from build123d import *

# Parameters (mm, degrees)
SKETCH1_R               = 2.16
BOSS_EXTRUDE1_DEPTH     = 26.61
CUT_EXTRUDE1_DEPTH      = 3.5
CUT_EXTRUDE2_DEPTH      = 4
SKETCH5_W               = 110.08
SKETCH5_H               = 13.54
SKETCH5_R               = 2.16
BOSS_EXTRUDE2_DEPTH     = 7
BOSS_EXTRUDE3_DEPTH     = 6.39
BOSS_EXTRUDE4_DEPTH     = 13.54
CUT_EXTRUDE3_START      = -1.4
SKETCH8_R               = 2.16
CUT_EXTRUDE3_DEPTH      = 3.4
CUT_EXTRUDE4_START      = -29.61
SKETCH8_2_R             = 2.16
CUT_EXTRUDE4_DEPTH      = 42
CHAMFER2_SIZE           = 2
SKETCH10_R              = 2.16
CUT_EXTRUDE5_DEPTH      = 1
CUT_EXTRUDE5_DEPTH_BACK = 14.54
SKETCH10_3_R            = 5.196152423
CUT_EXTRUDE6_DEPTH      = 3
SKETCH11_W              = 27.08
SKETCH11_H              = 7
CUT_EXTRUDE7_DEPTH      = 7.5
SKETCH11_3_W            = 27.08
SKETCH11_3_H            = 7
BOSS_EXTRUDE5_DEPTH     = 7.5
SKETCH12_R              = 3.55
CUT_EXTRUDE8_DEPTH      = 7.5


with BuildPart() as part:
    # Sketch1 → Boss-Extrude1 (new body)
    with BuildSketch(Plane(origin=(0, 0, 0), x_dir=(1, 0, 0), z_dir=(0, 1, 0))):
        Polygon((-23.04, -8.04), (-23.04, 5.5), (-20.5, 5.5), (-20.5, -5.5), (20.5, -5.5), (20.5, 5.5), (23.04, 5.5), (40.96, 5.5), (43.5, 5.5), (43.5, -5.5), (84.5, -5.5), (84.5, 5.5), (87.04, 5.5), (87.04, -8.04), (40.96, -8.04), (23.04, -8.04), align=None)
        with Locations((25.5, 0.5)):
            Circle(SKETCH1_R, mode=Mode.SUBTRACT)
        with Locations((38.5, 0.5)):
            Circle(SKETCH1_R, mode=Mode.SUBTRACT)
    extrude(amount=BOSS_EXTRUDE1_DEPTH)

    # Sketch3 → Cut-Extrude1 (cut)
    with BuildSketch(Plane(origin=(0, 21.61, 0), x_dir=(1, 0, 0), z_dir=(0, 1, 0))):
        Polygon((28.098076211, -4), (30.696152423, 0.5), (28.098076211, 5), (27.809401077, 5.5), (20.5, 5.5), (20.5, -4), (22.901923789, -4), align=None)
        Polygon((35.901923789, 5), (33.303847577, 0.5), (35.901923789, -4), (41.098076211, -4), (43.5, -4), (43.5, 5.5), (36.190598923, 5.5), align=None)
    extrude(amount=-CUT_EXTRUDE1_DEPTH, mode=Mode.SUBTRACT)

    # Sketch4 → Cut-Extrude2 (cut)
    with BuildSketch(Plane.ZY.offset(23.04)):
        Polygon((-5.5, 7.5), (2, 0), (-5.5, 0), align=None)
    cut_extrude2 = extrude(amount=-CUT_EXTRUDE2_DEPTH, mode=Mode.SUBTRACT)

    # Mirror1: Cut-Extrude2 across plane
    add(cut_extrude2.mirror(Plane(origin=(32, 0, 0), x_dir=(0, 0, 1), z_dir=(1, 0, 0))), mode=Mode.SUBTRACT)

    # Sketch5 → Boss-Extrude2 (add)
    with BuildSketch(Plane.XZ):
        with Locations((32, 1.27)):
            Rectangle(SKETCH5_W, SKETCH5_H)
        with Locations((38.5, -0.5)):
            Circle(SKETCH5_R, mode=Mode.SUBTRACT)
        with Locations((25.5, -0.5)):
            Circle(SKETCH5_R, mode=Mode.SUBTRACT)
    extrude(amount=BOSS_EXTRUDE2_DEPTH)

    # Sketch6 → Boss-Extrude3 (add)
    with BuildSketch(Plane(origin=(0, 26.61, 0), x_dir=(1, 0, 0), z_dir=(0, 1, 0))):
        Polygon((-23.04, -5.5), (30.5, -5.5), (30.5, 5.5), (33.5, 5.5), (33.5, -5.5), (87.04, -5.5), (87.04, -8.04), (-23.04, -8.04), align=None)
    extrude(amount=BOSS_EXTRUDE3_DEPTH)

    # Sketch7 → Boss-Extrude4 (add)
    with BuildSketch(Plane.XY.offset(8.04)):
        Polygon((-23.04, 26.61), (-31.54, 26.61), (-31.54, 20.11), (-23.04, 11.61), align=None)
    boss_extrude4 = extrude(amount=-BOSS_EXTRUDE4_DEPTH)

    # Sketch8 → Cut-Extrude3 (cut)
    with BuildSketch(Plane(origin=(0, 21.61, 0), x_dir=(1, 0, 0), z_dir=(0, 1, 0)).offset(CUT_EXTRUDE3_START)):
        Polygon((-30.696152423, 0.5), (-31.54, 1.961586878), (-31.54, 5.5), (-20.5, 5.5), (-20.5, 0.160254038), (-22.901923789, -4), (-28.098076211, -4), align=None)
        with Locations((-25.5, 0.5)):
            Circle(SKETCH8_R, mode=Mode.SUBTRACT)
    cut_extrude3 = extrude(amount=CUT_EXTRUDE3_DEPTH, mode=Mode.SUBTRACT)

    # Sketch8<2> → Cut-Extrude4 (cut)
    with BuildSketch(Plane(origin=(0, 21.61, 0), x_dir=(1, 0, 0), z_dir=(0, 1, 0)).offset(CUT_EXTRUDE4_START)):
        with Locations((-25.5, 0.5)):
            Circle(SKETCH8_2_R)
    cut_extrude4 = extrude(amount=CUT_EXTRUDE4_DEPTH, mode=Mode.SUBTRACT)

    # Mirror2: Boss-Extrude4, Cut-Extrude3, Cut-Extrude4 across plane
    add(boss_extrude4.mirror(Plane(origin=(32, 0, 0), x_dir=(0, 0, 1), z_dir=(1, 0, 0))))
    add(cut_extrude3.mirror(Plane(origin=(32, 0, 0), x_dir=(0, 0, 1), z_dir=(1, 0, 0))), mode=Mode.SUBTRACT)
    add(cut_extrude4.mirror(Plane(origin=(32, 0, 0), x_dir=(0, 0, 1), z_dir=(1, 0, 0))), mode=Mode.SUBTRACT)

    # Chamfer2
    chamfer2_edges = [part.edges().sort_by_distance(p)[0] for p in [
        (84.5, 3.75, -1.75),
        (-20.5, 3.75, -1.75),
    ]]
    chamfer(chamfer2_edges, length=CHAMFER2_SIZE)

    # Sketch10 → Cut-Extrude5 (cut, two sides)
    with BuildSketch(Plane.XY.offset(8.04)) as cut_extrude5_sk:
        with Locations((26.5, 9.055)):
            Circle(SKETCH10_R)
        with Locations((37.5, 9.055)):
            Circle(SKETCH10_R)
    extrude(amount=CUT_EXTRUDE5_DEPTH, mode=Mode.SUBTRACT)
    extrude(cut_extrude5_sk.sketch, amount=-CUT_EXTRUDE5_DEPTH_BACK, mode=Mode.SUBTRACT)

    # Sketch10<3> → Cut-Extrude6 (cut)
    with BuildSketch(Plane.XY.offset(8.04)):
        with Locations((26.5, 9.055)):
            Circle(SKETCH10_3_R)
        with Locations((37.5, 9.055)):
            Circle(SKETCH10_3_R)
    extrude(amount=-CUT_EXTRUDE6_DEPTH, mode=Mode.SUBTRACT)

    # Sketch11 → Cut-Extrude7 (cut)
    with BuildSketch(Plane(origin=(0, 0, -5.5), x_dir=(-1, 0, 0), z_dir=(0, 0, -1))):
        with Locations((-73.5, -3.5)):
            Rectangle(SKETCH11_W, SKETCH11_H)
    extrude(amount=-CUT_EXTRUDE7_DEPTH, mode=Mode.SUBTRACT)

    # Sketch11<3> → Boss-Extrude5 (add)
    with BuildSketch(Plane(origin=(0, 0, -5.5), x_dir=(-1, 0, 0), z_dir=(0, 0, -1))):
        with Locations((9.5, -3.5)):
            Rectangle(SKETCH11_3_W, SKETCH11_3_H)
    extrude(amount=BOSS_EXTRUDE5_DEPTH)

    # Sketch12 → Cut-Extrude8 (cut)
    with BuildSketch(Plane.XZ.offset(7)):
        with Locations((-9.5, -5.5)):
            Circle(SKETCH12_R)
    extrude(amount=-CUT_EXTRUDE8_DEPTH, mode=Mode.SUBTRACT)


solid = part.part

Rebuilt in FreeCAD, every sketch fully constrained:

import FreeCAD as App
import Part
import Sketcher

V = App.Vector
Q = App.Units.Quantity


def edges_at(feature, points):
    """Names of the edges that pass closest to the given points."""
    edges = feature.Shape.Edges
    near = lambda p: min(range(len(edges)), key=lambda i: edges[i].distToShape(Part.Vertex(*p))[0])
    return sorted({f"Edge{near(p) + 1}" for p in points})


def add_polygon(sketch, points):
    """Adds a closed chain of lines whose ends are joined by coincident constraints."""
    first, n = sketch.GeometryCount, len(points)
    for a, b in zip(points, points[1:] + points[:1]):
        sketch.addGeometry(Part.LineSegment(App.Vector(*a, 0), App.Vector(*b, 0)), False)
    for i in range(n):
        sketch.addConstraint(Sketcher.Constraint("Coincident", first + i, 2, first + (i + 1) % n, 1))

doc = App.newDocument("Part")
params = doc.addObject("Spreadsheet::Sheet", "Params")
for row, (alias, value) in enumerate([
    ("sketch1_diameter", "4.32 mm"),
    ("sketch1_width", "41 mm"),
    ("sketch1_width2", "23 mm"),
    ("sketch1_height", "11 mm"),
    ("sketch1_width3", "110.08 mm"),
    ("pad1_length", "26.61 mm"),
    ("sketch2_height", "9.5 mm"),
    ("pocket1_length", "3.5 mm"),
    ("sketch3_width", "7.5 mm"),
    ("pocket2_length", "4 mm"),
    ("sketch4_diameter", "4.32 mm"),
    ("sketch4_width", "110.08 mm"),
    ("sketch4_height", "13.54 mm"),
    ("pad2_length", "7 mm"),
    ("sketch5_width", "3 mm"),
    ("sketch5_height", "11 mm"),
    ("sketch5_width2", "53.54 mm"),
    ("sketch5_height2", "2.54 mm"),
    ("pad3_length", "6.39 mm"),
    ("sketch6_height", "15 mm"),
    ("sketch6_width", "8.5 mm"),
    ("pad4_length", "13.54 mm"),
    ("sketch7_diameter", "4.32 mm"),
    ("sketch7_width", "11.04 mm"),
    ("pocket3_length", "3.4 mm"),
    ("sketch8_diameter", "4.32 mm"),
    ("pocket4_length", "42 mm"),
    ("chamfer_size", "2 mm"),
    ("sketch9_diameter", "4.32 mm"),
    ("pocket6_length", "3 mm"),
    ("sketch11_height", "7 mm"),
    ("sketch11_width", "27.08 mm"),
    ("pocket7_length", "7.5 mm"),
    ("sketch12_height", "7 mm"),
    ("sketch12_width", "27.08 mm"),
    ("pad5_length", "7.5 mm"),
    ("sketch13_diameter", "7.1 mm"),
    ("pocket8_length", "7.5 mm"),
], start=1):
    params.set(f"A{row}", alias)
    params.set(f"B{row}", "=" + value)
    params.setAlias(f"B{row}", alias)

body = doc.addObject("PartDesign::Body", "Body")

sketch1 = body.newObject("Sketcher::SketchObject", "Sketch")
sketch1.AttachmentSupport = (doc.getObject("XZ_Plane"), [""])
sketch1.MapMode = "FlatFace"
add_polygon(sketch1, [(-23, -5.5), (-23, 8), (87, 8), (87, -5.5), (84.5, -5.5), (84.5, 5.5), (43.5, 5.5), (43.5, -5.5), (20.5, -5.5), (20.5, 5.5), (-20.5, 5.5), (-20.5, -5.5)])
sketch1.addGeometry(Part.Circle(V(38.5, -0.5, 0), V(0, 0, 1), 2.2), False)
sketch1.addGeometry(Part.Circle(V(25.5, -0.5, 0), V(0, 0, 1), 2.2), False)
sketch1.addConstraint([
    Sketcher.Constraint("Vertical", 0),
    Sketcher.Constraint("Horizontal", 1),
    Sketcher.Constraint("Vertical", 2),
    Sketcher.Constraint("Horizontal", 3),
    Sketcher.Constraint("Vertical", 4),
    Sketcher.Constraint("Horizontal", 5),
    Sketcher.Constraint("Vertical", 6),
    Sketcher.Constraint("Horizontal", 7),
    Sketcher.Constraint("Vertical", 8),
    Sketcher.Constraint("Horizontal", 9),
    Sketcher.Constraint("Vertical", 10),
    Sketcher.Constraint("Horizontal", 11),
    Sketcher.Constraint("Equal", 12, 13),
    Sketcher.Constraint("Symmetric", 7, 2, 9, 2, -1, 1),
    Sketcher.Constraint("Horizontal", 12, 3, 13, 3),
    Sketcher.Constraint("Horizontal", 3, 2, 6, 2),
    Sketcher.Constraint("Horizontal", 5, 2, 8, 2),
    Sketcher.Constraint("Horizontal", 7, 2, 10, 2),
    Sketcher.Constraint("Equal", 5, 9),
    Sketcher.Constraint("Equal", 3, 11),
    Sketcher.Constraint("Diameter", 12, Q("4.32 mm")),
    Sketcher.Constraint("DistanceX", 5, 2, 5, 1, Q("41 mm")),
    Sketcher.Constraint("DistanceX", 7, 2, 7, 1, Q("23 mm")),
    Sketcher.Constraint("DistanceY", 4, 1, 4, 2, Q("11 mm")),
    Sketcher.Constraint("DistanceX", 13, 3, 12, 3, Q("13 mm")),
    Sketcher.Constraint("DistanceY", 2, 2, 12, 3, Q("5 mm")),
    Sketcher.Constraint("DistanceX", 12, 3, 3, 2, Q("46 mm")),
    Sketcher.Constraint("DistanceX", 1, 1, 1, 2, Q("110.08 mm")),
    Sketcher.Constraint("DistanceY", 0, 1, 0, 2, Q("13.54 mm")),
])
sketch1.setExpression("Constraints[32]", "Params.sketch1_diameter")
sketch1.setExpression("Constraints[33]", "Params.sketch1_width")
sketch1.setExpression("Constraints[34]", "Params.sketch1_width2")
sketch1.setExpression("Constraints[35]", "Params.sketch1_height")
sketch1.setExpression("Constraints[39]", "Params.sketch1_width3")
pad1 = body.newObject("PartDesign::Pad", "Pad")
pad1.Profile = sketch1
pad1.setExpression("Length", "Params.pad1_length")
pad1.Reversed = True

sketch2 = body.newObject("Sketcher::SketchObject", "Sketch001")
sketch2.AttachmentSupport = (doc.getObject("XZ_Plane"), [""])
sketch2.MapMode = "FlatFace"
sketch2.AttachmentOffset = App.Placement(V(0, 0, -21.61), App.Rotation())
add_polygon(sketch2, [(28.1, 4), (30.7, -0.5), (28.1, -5), (27.8, -5.5), (20.5, -5.5), (20.5, 4)])
add_polygon(sketch2, [(35.9, -5), (33.3, -0.5), (35.9, 4), (43.5, 4), (43.5, -5.5), (36.2, -5.5)])
sketch2.addConstraint([
    Sketcher.Constraint("Horizontal", 3),
    Sketcher.Constraint("Vertical", 4),
    Sketcher.Constraint("Horizontal", 5),
    Sketcher.Constraint("Horizontal", 8),
    Sketcher.Constraint("Vertical", 9),
    Sketcher.Constraint("Horizontal", 10),
    Sketcher.Constraint("Parallel", 1, 2),
    Sketcher.Constraint("Parallel", 0, 6),
    Sketcher.Constraint("Parallel", 2, 7),
    Sketcher.Constraint("Parallel", 6, 11),
    Sketcher.Constraint("Horizontal", 0, 2, 6, 2),
    Sketcher.Constraint("Horizontal", 5, 2, 7, 2),
    Sketcher.Constraint("Horizontal", 3, 2, 9, 2),
    Sketcher.Constraint("Horizontal", 1, 2, 11, 2),
    Sketcher.Constraint("Vertical", 1, 2, 5, 2),
    Sketcher.Constraint("Vertical", 7, 2, 11, 2),
    Sketcher.Constraint("Equal", 5, 8),
    Sketcher.Constraint("Angle", 0, Q("-60 deg")),
    Sketcher.Constraint("DistanceY", 4, 1, 4, 2, Q("9.5 mm")),
    Sketcher.Constraint("DistanceY", 1, 2, -1, 1, Q("5 mm")),
    Sketcher.Constraint("DistanceY", -1, 1, 4, 2, Q("4 mm")),
    Sketcher.Constraint("DistanceX", -1, 1, 3, 2, Q("20.5 mm")),
    Sketcher.Constraint("DistanceX", -1, 1, 8, 2, Q("43.5 mm")),
    Sketcher.Constraint("DistanceX", 3, 2, 3, 1, Q("7.309401 mm")),
])
sketch2.setExpression("Constraints[30]", "Params.sketch2_height")
pocket1 = body.newObject("PartDesign::Pocket", "Pocket")
pocket1.Profile = sketch2
pocket1.setExpression("Length", "Params.pocket1_length")
pocket1.Reversed = True

sketch3 = body.newObject("Sketcher::SketchObject", "Sketch002")
sketch3.AttachmentSupport = (doc.getObject("YZ_Plane"), [""])
sketch3.MapMode = "FlatFace"
sketch3.AttachmentOffset = App.Placement(V(0, 0, -23.04), App.Rotation())
add_polygon(sketch3, [(0, 2), (8, -6), (0, -6)])
sketch3.addConstraint([
    Sketcher.Constraint("Horizontal", 1),
    Sketcher.Constraint("Vertical", 2),
    Sketcher.Constraint("PointOnObject", 1, 2, -2),
    Sketcher.Constraint("Equal", 1, 2),
    Sketcher.Constraint("DistanceX", 1, 2, 1, 1, Q("7.5 mm")),
    Sketcher.Constraint("DistanceY", -1, 1, 2, 2, Q("2 mm")),
])
sketch3.setExpression("Constraints[7]", "Params.sketch3_width")
pocket2 = body.newObject("PartDesign::Pocket", "Pocket001")
pocket2.Profile = sketch3
pocket2.setExpression("Length", "Params.pocket2_length")
pocket2.Reversed = True
doc.recompute()

datumplane = body.newObject("PartDesign::Plane", "DatumPlane")
datumplane.AttachmentSupport = (doc.getObject("YZ_Plane"), [""])
datumplane.MapMode = "FlatFace"
datumplane.AttachmentOffset = App.Placement(V(0, 0, 32), App.Rotation())
mirrored = body.newObject("PartDesign::Mirrored", "Mirrored")
mirrored.Originals = [pocket2]
mirrored.MirrorPlane = (datumplane, [""])
body.Tip = mirrored

sketch4 = body.newObject("Sketcher::SketchObject", "Sketch003")
sketch4.AttachmentSupport = (doc.getObject("XZ_Plane"), [""])
sketch4.MapMode = "FlatFace"
add_polygon(sketch4, [(-23, 8), (-23, -5.5), (87, -5.5), (87, 8)])
sketch4.addGeometry(Part.Circle(V(25.5, -0.5, 0), V(0, 0, 1), 2.2), False)
sketch4.addGeometry(Part.Circle(V(38.5, -0.5, 0), V(0, 0, 1), 2.2), False)
sketch4.addConstraint([
    Sketcher.Constraint("Vertical", 0),
    Sketcher.Constraint("Horizontal", 1),
    Sketcher.Constraint("Vertical", 2),
    Sketcher.Constraint("Horizontal", 3),
    Sketcher.Constraint("Equal", 4, 5),
    Sketcher.Constraint("Horizontal", 4, 3, 5, 3),
    Sketcher.Constraint("Diameter", 4, Q("4.32 mm")),
    Sketcher.Constraint("DistanceX", 4, 3, 5, 3, Q("13 mm")),
    Sketcher.Constraint("DistanceY", 0, 2, 4, 3, Q("5 mm")),
    Sketcher.Constraint("DistanceX", 1, 1, 1, 2, Q("110.08 mm")),
    Sketcher.Constraint("DistanceY", 0, 2, 0, 1, Q("13.54 mm")),
    Sketcher.Constraint("DistanceX", -1, 1, 4, 3, Q("25.5 mm")),
    Sketcher.Constraint("DistanceY", 4, 3, -1, 1, Q("0.5 mm")),
    Sketcher.Constraint("DistanceX", 0, 2, -1, 1, Q("23.04 mm")),
])
sketch4.setExpression("Constraints[10]", "Params.sketch4_diameter")
sketch4.setExpression("Constraints[13]", "Params.sketch4_width")
sketch4.setExpression("Constraints[14]", "Params.sketch4_height")
pad2 = body.newObject("PartDesign::Pad", "Pad001")
pad2.Profile = sketch4
pad2.setExpression("Length", "Params.pad2_length")

sketch5 = body.newObject("Sketcher::SketchObject", "Sketch004")
sketch5.AttachmentSupport = (doc.getObject("XZ_Plane"), [""])
sketch5.MapMode = "FlatFace"
sketch5.AttachmentOffset = App.Placement(V(0, 0, -26.61), App.Rotation())
add_polygon(sketch5, [(30.5, 5.5), (-23, 5.5), (-23, 8), (87, 8), (87, 5.5), (33.5, 5.5), (33.5, -5.5), (30.5, -5.5)])
sketch5.addConstraint([
    Sketcher.Constraint("Horizontal", 0),
    Sketcher.Constraint("Vertical", 1),
    Sketcher.Constraint("Horizontal", 2),
    Sketcher.Constraint("Vertical", 3),
    Sketcher.Constraint("Horizontal", 4),
    Sketcher.Constraint("Vertical", 5),
    Sketcher.Constraint("Horizontal", 6),
    Sketcher.Constraint("Vertical", 7),
    Sketcher.Constraint("Horizontal", 0, 2, 3, 2),
    Sketcher.Constraint("Equal", 0, 4),
    Sketcher.Constraint("DistanceX", 6, 2, 6, 1, Q("3 mm")),
    Sketcher.Constraint("DistanceY", 5, 2, 5, 1, Q("11 mm")),
    Sketcher.Constraint("DistanceX", 0, 2, 0, 1, Q("53.54 mm")),
    Sketcher.Constraint("DistanceY", 1, 1, 1, 2, Q("2.54 mm")),
    Sketcher.Constraint("DistanceY", -1, 1, 0, 2, Q("5.5 mm")),
    Sketcher.Constraint("DistanceX", -1, 1, 4, 2, Q("33.5 mm")),
])
sketch5.setExpression("Constraints[18]", "Params.sketch5_width")
sketch5.setExpression("Constraints[19]", "Params.sketch5_height")
sketch5.setExpression("Constraints[20]", "Params.sketch5_width2")
sketch5.setExpression("Constraints[21]", "Params.sketch5_height2")
pad3 = body.newObject("PartDesign::Pad", "Pad002")
pad3.Profile = sketch5
pad3.setExpression("Length", "Params.pad3_length")
pad3.Reversed = True

sketch6 = body.newObject("Sketcher::SketchObject", "Sketch005")
sketch6.AttachmentSupport = (doc.getObject("XY_Plane"), [""])
sketch6.MapMode = "FlatFace"
sketch6.AttachmentOffset = App.Placement(V(0, 0, 8.04), App.Rotation())
add_polygon(sketch6, [(-23, 27), (-32, 27), (-32, 20), (-23, 12)])
sketch6.addConstraint([
    Sketcher.Constraint("Horizontal", 0),
    Sketcher.Constraint("Vertical", 1),
    Sketcher.Constraint("Vertical", 3),
    Sketcher.Constraint("DistanceY", 3, 1, 3, 2, Q("15 mm")),
    Sketcher.Constraint("Angle", 2, Q("-45 deg")),
    Sketcher.Constraint("DistanceX", 0, 2, 0, 1, Q("8.5 mm")),
    Sketcher.Constraint("DistanceX", 0, 2, -1, 1, Q("31.54 mm")),
    Sketcher.Constraint("DistanceY", -1, 1, 0, 2, Q("26.61 mm")),
])
sketch6.setExpression("Constraints[7]", "Params.sketch6_height")
sketch6.setExpression("Constraints[9]", "Params.sketch6_width")
pad4 = body.newObject("PartDesign::Pad", "Pad003")
pad4.Profile = sketch6
pad4.setExpression("Length", "Params.pad4_length")
pad4.Reversed = True

sketch7 = body.newObject("Sketcher::SketchObject", "Sketch006")
sketch7.AttachmentSupport = (doc.getObject("XZ_Plane"), [""])
sketch7.MapMode = "FlatFace"
sketch7.AttachmentOffset = App.Placement(V(0, 0, -20.21), App.Rotation())
add_polygon(sketch7, [(-31.5, -2), (-30.7, -0.5), (-28.1, 4), (-22.9, 4), (-20.5, -0.2), (-20.5, -5.5), (-31.5, -5.5)])
sketch7.addGeometry(Part.Circle(V(-25.5, -0.5, 0), V(0, 0, 1), 2.2), False)
sketch7.addConstraint([
    Sketcher.Constraint("Horizontal", 2),
    Sketcher.Constraint("Vertical", 4),
    Sketcher.Constraint("Horizontal", 5),
    Sketcher.Constraint("Vertical", 6),
    Sketcher.Constraint("Parallel", 0, 1),
    Sketcher.Constraint("Horizontal", 7, 3, 0, 2),
    Sketcher.Constraint("Diameter", 7, Q("4.32 mm")),
    Sketcher.Constraint("Angle", 0, Q("60 deg")),
    Sketcher.Constraint("Angle", 3, Q("-60 deg")),
    Sketcher.Constraint("DistanceY", -1, 1, 1, 2, Q("4 mm")),
    Sketcher.Constraint("DistanceX", 7, 3, 3, 2, Q("5 mm")),
    Sketcher.Constraint("DistanceY", 4, 2, 7, 3, Q("5 mm")),
    Sketcher.Constraint("DistanceX", 5, 2, 5, 1, Q("11.04 mm")),
    Sketcher.Constraint("DistanceX", 7, 3, -1, 1, Q("25.5 mm")),
    Sketcher.Constraint("DistanceY", 7, 3, -1, 1, Q("0.5 mm")),
    Sketcher.Constraint("DistanceX", 2, 1, 2, 2, Q("5.196152 mm")),
    Sketcher.Constraint("DistanceY", 4, 2, 4, 1, Q("5.339746 mm")),
])
sketch7.setExpression("Constraints[13]", "Params.sketch7_diameter")
sketch7.setExpression("Constraints[19]", "Params.sketch7_width")
pocket3 = body.newObject("PartDesign::Pocket", "Pocket002")
pocket3.Profile = sketch7
pocket3.setExpression("Length", "Params.pocket3_length")

sketch8 = body.newObject("Sketcher::SketchObject", "Sketch007")
sketch8.AttachmentSupport = (doc.getObject("XZ_Plane"), [""])
sketch8.MapMode = "FlatFace"
sketch8.AttachmentOffset = App.Placement(V(0, 0, 8), App.Rotation())
sketch8.addGeometry(Part.Circle(V(-25.5, -0.5, 0), V(0, 0, 1), 2.2), False)
sketch8.addConstraint([
    Sketcher.Constraint("Diameter", 0, Q("4.32 mm")),
    Sketcher.Constraint("DistanceX", 0, 3, -1, 1, Q("25.5 mm")),
    Sketcher.Constraint("DistanceY", 0, 3, -1, 1, Q("0.5 mm")),
])
sketch8.setExpression("Constraints[0]", "Params.sketch8_diameter")
pocket4 = body.newObject("PartDesign::Pocket", "Pocket003")
pocket4.Profile = sketch8
pocket4.setExpression("Length", "Params.pocket4_length")
doc.recompute()

datumplane2 = body.newObject("PartDesign::Plane", "DatumPlane001")
datumplane2.AttachmentSupport = (doc.getObject("YZ_Plane"), [""])
datumplane2.MapMode = "FlatFace"
datumplane2.AttachmentOffset = App.Placement(V(0, 0, 32), App.Rotation())
mirrored2 = body.newObject("PartDesign::Mirrored", "Mirrored001")
mirrored2.Originals = [pad4, pocket3, pocket4]
mirrored2.MirrorPlane = (datumplane2, [""])
body.Tip = mirrored2
doc.recompute()

chamfer = body.newObject("PartDesign::Chamfer", "Chamfer")
chamfer.Base = (mirrored2, edges_at(mirrored2, [(84.5, 3.75, -1.75), (-20.5, 3.75, -1.75)]))
chamfer.setExpression("Size", "Params.chamfer_size")

sketch9 = body.newObject("Sketcher::SketchObject", "Sketch008")
sketch9.AttachmentSupport = (doc.getObject("XY_Plane"), [""])
sketch9.MapMode = "FlatFace"
sketch9.AttachmentOffset = App.Placement(V(0, 0, 8.04), App.Rotation())
sketch9.addGeometry([
    Part.Circle(V(26.5, 9.1, 0), V(0, 0, 1), 2.2),
    Part.Circle(V(37.5, 9.1, 0), V(0, 0, 1), 2.2),
], False)
sketch9.addConstraint([
    Sketcher.Constraint("Equal", 0, 1),
    Sketcher.Constraint("Horizontal", 0, 3, 1, 3),
    Sketcher.Constraint("Diameter", 0, Q("4.32 mm")),
    Sketcher.Constraint("DistanceX", 0, 3, 1, 3, Q("11 mm")),
    Sketcher.Constraint("DistanceX", -1, 1, 0, 3, Q("26.5 mm")),
    Sketcher.Constraint("DistanceY", -1, 1, 0, 3, Q("9.055 mm")),
])
sketch9.setExpression("Constraints[2]", "Params.sketch9_diameter")
pocket5 = body.newObject("PartDesign::Pocket", "Pocket004")
pocket5.Profile = sketch9
pocket5.Type = "ThroughAll"
pocket5.Midplane = True

sketch10 = body.newObject("Sketcher::SketchObject", "Sketch009")
sketch10.AttachmentSupport = (doc.getObject("XY_Plane"), [""])
sketch10.MapMode = "FlatFace"
sketch10.AttachmentOffset = App.Placement(V(0, 0, 8.04), App.Rotation())
sketch10.addGeometry([
    Part.Circle(V(26, 9, 0), V(0, 0, 1), 5),
    Part.Circle(V(38, 9, 0), V(0, 0, 1), 5),
], False)
sketch10.addConstraint([
    Sketcher.Constraint("Equal", 0, 1),
    Sketcher.Constraint("Horizontal", 0, 3, 1, 3),
    Sketcher.Constraint("DistanceX", 0, 3, 1, 3, Q("11 mm")),
    Sketcher.Constraint("DistanceX", -1, 1, 0, 3, Q("26.5 mm")),
    Sketcher.Constraint("Diameter", 0, Q("10.392305 mm")),
    Sketcher.Constraint("DistanceY", -1, 1, 0, 3, Q("9.055 mm")),
])
pocket6 = body.newObject("PartDesign::Pocket", "Pocket005")
pocket6.Profile = sketch10
pocket6.setExpression("Length", "Params.pocket6_length")

sketch11 = body.newObject("Sketcher::SketchObject", "Sketch010")
sketch11.AttachmentSupport = (doc.getObject("XY_Plane"), [""])
sketch11.MapMode = "FlatFace"
sketch11.AttachmentOffset = App.Placement(V(0, 0, -5.5), App.Rotation())
add_polygon(sketch11, [(87, 0), (87, -7), (60, -7), (60, 0)])
sketch11.addConstraint([
    Sketcher.Constraint("Vertical", 0),
    Sketcher.Constraint("Horizontal", 1),
    Sketcher.Constraint("Vertical", 2),
    Sketcher.Constraint("Horizontal", 3),
    Sketcher.Constraint("PointOnObject", 2, 2, -1),
    Sketcher.Constraint("DistanceY", 0, 2, 0, 1, Q("7 mm")),
    Sketcher.Constraint("DistanceX", 1, 2, 1, 1, Q("27.08 mm")),
    Sketcher.Constraint("DistanceX", -1, 1, 0, 2, Q("87.04 mm")),
])
sketch11.setExpression("Constraints[9]", "Params.sketch11_height")
sketch11.setExpression("Constraints[10]", "Params.sketch11_width")
pocket7 = body.newObject("PartDesign::Pocket", "Pocket006")
pocket7.Profile = sketch11
pocket7.setExpression("Length", "Params.pocket7_length")
pocket7.Reversed = True

sketch12 = body.newObject("Sketcher::SketchObject", "Sketch011")
sketch12.AttachmentSupport = (doc.getObject("XY_Plane"), [""])
sketch12.MapMode = "FlatFace"
sketch12.AttachmentOffset = App.Placement(V(0, 0, -5.5), App.Rotation())
add_polygon(sketch12, [(4, 0), (4, -7), (-23, -7), (-23, 0)])
sketch12.addConstraint([
    Sketcher.Constraint("Vertical", 0),
    Sketcher.Constraint("Horizontal", 1),
    Sketcher.Constraint("Vertical", 2),
    Sketcher.Constraint("Horizontal", 3),
    Sketcher.Constraint("PointOnObject", 2, 2, -1),
    Sketcher.Constraint("DistanceY", 0, 2, 0, 1, Q("7 mm")),
    Sketcher.Constraint("DistanceX", 1, 2, 1, 1, Q("27.08 mm")),
    Sketcher.Constraint("DistanceX", -1, 1, 0, 2, Q("4.04 mm")),
])
sketch12.setExpression("Constraints[9]", "Params.sketch12_height")
sketch12.setExpression("Constraints[10]", "Params.sketch12_width")
pad5 = body.newObject("PartDesign::Pad", "Pad004")
pad5.Profile = sketch12
pad5.setExpression("Length", "Params.pad5_length")
pad5.Reversed = True

sketch13 = body.newObject("Sketcher::SketchObject", "Sketch012")
sketch13.AttachmentSupport = (doc.getObject("XZ_Plane"), [""])
sketch13.MapMode = "FlatFace"
sketch13.AttachmentOffset = App.Placement(V(0, 0, 7), App.Rotation())
sketch13.addGeometry(Part.Circle(V(-9.5, -5.5, 0), V(0, 0, 1), 3.5), False)
sketch13.addConstraint([
    Sketcher.Constraint("Diameter", 0, Q("7.1 mm")),
    Sketcher.Constraint("DistanceX", 0, 3, -1, 1, Q("9.5 mm")),
    Sketcher.Constraint("DistanceY", 0, 3, -1, 1, Q("5.5 mm")),
])
sketch13.setExpression("Constraints[0]", "Params.sketch13_diameter")
pocket8 = body.newObject("PartDesign::Pocket", "Pocket007")
pocket8.Profile = sketch13
pocket8.setExpression("Length", "Params.pocket8_length")

doc.recompute()
